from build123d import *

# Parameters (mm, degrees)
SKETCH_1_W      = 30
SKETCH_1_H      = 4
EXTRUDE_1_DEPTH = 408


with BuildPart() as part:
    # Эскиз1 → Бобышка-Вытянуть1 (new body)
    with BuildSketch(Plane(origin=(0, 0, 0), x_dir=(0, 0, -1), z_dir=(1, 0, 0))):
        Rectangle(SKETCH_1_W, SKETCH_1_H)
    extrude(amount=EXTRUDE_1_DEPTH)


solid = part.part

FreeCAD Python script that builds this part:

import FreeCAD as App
import Part
import Sketcher

V = App.Vector
Q = App.Units.Quantity

doc = App.newDocument("Part")
params = doc.addObject("Spreadsheet::Sheet", "Params")
for row, (alias, value) in enumerate([
    ("sketch1_width", "4 mm"),
    ("sketch1_height", "30 mm"),
    ("pad1_length", "408 mm"),
], start=1):
    params.set(f"A{row}", alias)
    params.set(f"B{row}", "=" + value)
    params.setAlias(f"B{row}", alias)

body = doc.addObject("PartDesign::Body", "Body")

sketch1 = body.newObject("Sketcher::SketchObject", "Sketch")
sketch1.AttachmentSupport = (doc.getObject("YZ_Plane"), [""])
sketch1.MapMode = "FlatFace"
sketch1.addGeometry([
    Part.LineSegment(V(2, 15, 0), V(-2, 15, 0)),
    Part.LineSegment(V(-2, 15, 0), V(-2, -15, 0)),
    Part.LineSegment(V(-2, -15, 0), V(2, -15, 0)),
    Part.LineSegment(V(2, -15, 0), V(2, 15, 0)),
], False)
sketch1.addConstraint([
    Sketcher.Constraint("Coincident", 0, 2, 1, 1),
    Sketcher.Constraint("Coincident", 1, 2, 2, 1),
    Sketcher.Constraint("Coincident", 2, 2, 3, 1),
    Sketcher.Constraint("Coincident", 3, 2, 0, 1),
    Sketcher.Constraint("Horizontal", 0),
    Sketcher.Constraint("Vertical", 1),
    Sketcher.Constraint("Horizontal", 2),
    Sketcher.Constraint("Vertical", 3),
    Sketcher.Constraint("Symmetric", 0, 2, 2, 2, -1, 1),
    Sketcher.Constraint("DistanceX", 0, 2, 0, 1, Q("4 mm")),
    Sketcher.Constraint("DistanceY", 1, 2, 1, 1, Q("30 mm")),
])
sketch1.setExpression("Constraints[9]", "Params.sketch1_width")
sketch1.setExpression("Constraints[10]", "Params.sketch1_height")
pad1 = body.newObject("PartDesign::Pad", "Pad")
pad1.Profile = sketch1
pad1.setExpression("Length", "Params.pad1_length")

doc.recompute()
